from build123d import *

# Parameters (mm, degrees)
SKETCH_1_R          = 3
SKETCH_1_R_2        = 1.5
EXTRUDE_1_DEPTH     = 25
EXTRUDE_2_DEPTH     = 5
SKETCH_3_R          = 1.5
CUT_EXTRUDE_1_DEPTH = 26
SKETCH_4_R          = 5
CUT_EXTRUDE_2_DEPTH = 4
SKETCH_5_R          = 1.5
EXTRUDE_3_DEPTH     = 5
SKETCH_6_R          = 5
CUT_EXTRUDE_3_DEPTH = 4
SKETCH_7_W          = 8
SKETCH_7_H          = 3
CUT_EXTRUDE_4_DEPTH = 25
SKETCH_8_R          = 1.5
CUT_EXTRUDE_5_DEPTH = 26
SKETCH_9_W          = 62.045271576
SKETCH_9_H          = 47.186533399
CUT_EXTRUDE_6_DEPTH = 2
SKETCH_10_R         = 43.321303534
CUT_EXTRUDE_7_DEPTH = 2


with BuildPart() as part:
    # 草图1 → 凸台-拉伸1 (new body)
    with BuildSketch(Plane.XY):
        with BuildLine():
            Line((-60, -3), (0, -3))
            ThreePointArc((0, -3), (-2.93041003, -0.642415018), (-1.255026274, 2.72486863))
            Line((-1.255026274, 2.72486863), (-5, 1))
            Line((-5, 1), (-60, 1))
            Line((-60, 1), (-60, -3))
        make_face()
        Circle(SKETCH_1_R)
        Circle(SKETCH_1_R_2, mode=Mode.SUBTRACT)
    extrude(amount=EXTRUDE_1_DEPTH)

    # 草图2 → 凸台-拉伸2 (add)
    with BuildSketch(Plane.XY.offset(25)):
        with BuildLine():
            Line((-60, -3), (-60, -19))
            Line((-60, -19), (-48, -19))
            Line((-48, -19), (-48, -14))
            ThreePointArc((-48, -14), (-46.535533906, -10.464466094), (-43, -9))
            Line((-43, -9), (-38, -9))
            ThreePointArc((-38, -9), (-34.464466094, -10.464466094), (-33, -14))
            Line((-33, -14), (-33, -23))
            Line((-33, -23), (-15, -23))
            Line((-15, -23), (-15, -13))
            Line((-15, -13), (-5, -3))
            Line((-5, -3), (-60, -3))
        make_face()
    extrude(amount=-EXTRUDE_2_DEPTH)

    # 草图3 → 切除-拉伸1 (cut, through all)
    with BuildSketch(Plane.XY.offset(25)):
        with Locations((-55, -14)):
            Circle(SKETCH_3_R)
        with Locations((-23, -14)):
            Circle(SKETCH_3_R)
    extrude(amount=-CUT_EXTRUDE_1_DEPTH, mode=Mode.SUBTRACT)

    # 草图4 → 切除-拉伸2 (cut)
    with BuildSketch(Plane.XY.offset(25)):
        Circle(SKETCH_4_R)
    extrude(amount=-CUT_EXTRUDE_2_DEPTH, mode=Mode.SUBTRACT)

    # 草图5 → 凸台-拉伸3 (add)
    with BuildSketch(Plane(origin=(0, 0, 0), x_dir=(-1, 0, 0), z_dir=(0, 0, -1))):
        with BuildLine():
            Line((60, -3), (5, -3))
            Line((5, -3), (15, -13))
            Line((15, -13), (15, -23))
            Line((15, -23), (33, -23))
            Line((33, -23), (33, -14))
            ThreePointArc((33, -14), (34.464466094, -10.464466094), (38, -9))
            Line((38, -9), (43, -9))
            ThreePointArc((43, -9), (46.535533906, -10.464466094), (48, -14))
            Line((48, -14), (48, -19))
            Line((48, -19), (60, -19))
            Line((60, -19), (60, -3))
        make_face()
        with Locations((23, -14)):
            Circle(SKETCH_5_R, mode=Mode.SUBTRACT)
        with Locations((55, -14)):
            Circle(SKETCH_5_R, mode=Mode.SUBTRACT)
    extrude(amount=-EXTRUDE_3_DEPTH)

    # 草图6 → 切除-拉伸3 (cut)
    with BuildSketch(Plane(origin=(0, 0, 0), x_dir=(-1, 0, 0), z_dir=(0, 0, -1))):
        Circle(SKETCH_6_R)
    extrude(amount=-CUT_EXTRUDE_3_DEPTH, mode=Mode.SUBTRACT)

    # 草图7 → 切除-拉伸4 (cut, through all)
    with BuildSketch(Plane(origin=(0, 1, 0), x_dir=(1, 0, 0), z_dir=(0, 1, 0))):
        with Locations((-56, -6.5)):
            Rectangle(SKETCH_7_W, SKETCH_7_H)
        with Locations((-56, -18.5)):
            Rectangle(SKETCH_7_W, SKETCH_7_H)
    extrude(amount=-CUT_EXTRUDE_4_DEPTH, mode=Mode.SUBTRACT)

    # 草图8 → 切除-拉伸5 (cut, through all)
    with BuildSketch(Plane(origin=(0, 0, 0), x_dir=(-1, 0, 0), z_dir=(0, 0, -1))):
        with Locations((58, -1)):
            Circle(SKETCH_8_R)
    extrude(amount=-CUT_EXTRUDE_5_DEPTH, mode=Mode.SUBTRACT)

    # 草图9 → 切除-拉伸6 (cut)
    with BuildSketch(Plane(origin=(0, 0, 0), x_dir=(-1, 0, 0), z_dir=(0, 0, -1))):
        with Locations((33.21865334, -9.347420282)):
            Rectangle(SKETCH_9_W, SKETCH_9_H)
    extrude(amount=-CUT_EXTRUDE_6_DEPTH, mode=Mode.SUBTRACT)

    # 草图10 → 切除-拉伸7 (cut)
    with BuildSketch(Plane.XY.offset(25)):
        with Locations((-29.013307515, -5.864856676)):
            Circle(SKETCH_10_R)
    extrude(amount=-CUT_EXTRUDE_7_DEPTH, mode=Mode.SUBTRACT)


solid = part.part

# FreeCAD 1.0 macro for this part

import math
import FreeCAD as App
import Part
import Sketcher
from FreeCAD import Vector
Q = App.Units.Quantity


def add_polygon(sketch, points):
    """Adds a closed chain of lines whose ends are joined by coincident constraints."""
    first, n = sketch.GeometryCount, len(points)
    for a, b in zip(points, points[1:] + points[:1]):
        sketch.addGeometry(Part.LineSegment(App.Vector(*a, 0), App.Vector(*b, 0)), False)
    for i in range(n):
        sketch.addConstraint(Sketcher.Constraint("Coincident", first + i, 2, first + (i + 1) % n, 1))

doc = App.newDocument("Part")
body = doc.addObject("PartDesign::Body", "Body")

sketch1 = body.newObject("Sketcher::SketchObject", "Sketch")
sketch1.AttachmentSupport = (doc.getObject("XY_Plane"), [""])
sketch1.MapMode = "FlatFace"
sketch1.addGeometry(Part.LineSegment(Vector(-60, -3, 0), Vector(0, -3, 0)), False)
sketch1.addGeometry(Part.ArcOfCircle(Part.Circle(Vector(0, 0, 0), Vector(0, 0, 1), 3), math.radians(-90), math.radians(115)), False)
sketch1.addGeometry(Part.LineSegment(Vector(-1.3, 2.7, 0), Vector(-5, 1, 0)), False)
sketch1.addGeometry(Part.LineSegment(Vector(-5, 1, 0), Vector(-60, 1, 0)), False)
sketch1.addGeometry(Part.LineSegment(Vector(-60, 1, 0), Vector(-60, -3, 0)), False)
sketch1.addGeometry(Part.Circle(Vector(0, 0, 0), Vector(0, 0, 1), 1.5), False)
sketch1.addConstraint(Sketcher.Constraint("Tangent", 0, 2, 1, 1))
sketch1.addConstraint(Sketcher.Constraint("Tangent", 1, 2, 2, 1))
sketch1.addConstraint(Sketcher.Constraint("Coincident", 2, 2, 3, 1))
sketch1.addConstraint(Sketcher.Constraint("Coincident", 3, 2, 4, 1))
sketch1.addConstraint(Sketcher.Constraint("Coincident", 4, 2, 0, 1))
sketch1.addConstraint(Sketcher.Constraint("Horizontal", 0))
sketch1.addConstraint(Sketcher.Constraint("Horizontal", 3))
sketch1.addConstraint(Sketcher.Constraint("Vertical", 4))
sketch1.addConstraint(Sketcher.Constraint("Coincident", 1, 3, -1, 1))
sketch1.addConstraint(Sketcher.Constraint("Coincident", 5, 3, -1, 1))
sketch1.addConstraint(Sketcher.Constraint("Diameter", 5, Q("3 mm")))
sketch1.addConstraint(Sketcher.Constraint("Radius", 1, Q("3 mm")))
sketch1.addConstraint(Sketcher.Constraint("DistanceX", 0, 1, 0, 2, Q("60 mm")))
sketch1.addConstraint(Sketcher.Constraint("DistanceX", 3, 2, 3, 1, Q("55 mm")))
sketch1.addConstraint(Sketcher.Constraint("DistanceY", 4, 2, 4, 1, Q("4 mm")))
pad1 = body.newObject("PartDesign::Pad", "Pad")
pad1.Profile = sketch1
pad1.Length = 25

sketch2 = body.newObject("Sketcher::SketchObject", "Sketch001")
sketch2.AttachmentSupport = (doc.getObject("XY_Plane"), [""])
sketch2.MapMode = "FlatFace"
sketch2.AttachmentOffset = App.Placement(Vector(0, 0, 25), App.Rotation())
sketch2.addGeometry(Part.LineSegment(Vector(-60, -3, 0), Vector(-60, -19, 0)), False)
sketch2.addGeometry(Part.LineSegment(Vector(-60, -19, 0), Vector(-48, -19, 0)), False)
sketch2.addGeometry(Part.LineSegment(Vector(-48, -19, 0), Vector(-48, -14, 0)), False)
sketch2.addGeometry(Part.ArcOfCircle(Part.Circle(Vector(-43, -14, 0), Vector(0, 0, 1), 5), math.radians(90), math.radians(180)), False)
sketch2.addGeometry(Part.LineSegment(Vector(-43, -9, 0), Vector(-38, -9, 0)), False)
sketch2.addGeometry(Part.ArcOfCircle(Part.Circle(Vector(-38, -14, 0), Vector(0, 0, 1), 5), math.radians(0), math.radians(90)), False)
sketch2.addGeometry(Part.LineSegment(Vector(-33, -14, 0), Vector(-33, -23, 0)), False)
sketch2.addGeometry(Part.LineSegment(Vector(-33, -23, 0), Vector(-15, -23, 0)), False)
sketch2.addGeometry(Part.LineSegment(Vector(-15, -23, 0), Vector(-15, -13, 0)), False)
sketch2.addGeometry(Part.LineSegment(Vector(-15, -13, 0), Vector(-5, -3, 0)), False)
sketch2.addGeometry(Part.LineSegment(Vector(-5, -3, 0), Vector(-60, -3, 0)), False)
sketch2.addConstraint(Sketcher.Constraint("Coincident", 0, 2, 1, 1))
sketch2.addConstraint(Sketcher.Constraint("Coincident", 1, 2, 2, 1))
sketch2.addConstraint(Sketcher.Constraint("Tangent", 2, 2, 3, 2))
sketch2.addConstraint(Sketcher.Constraint("Tangent", 3, 1, 4, 1))
sketch2.addConstraint(Sketcher.Constraint("Tangent", 4, 2, 5, 2))
sketch2.addConstraint(Sketcher.Constraint("Tangent", 5, 1, 6, 1))
sketch2.addConstraint(Sketcher.Constraint("Coincident", 6, 2, 7, 1))
sketch2.addConstraint(Sketcher.Constraint("Coincident", 7, 2, 8, 1))
sketch2.addConstraint(Sketcher.Constraint("Coincident", 8, 2, 9, 1))
sketch2.addConstraint(Sketcher.Constraint("Coincident", 9, 2, 10, 1))
sketch2.addConstraint(Sketcher.Constraint("Coincident", 10, 2, 0, 1))
sketch2.addConstraint(Sketcher.Constraint("Vertical", 0))
sketch2.addConstraint(Sketcher.Constraint("Horizontal", 1))
sketch2.addConstraint(Sketcher.Constraint("Vertical", 2))
sketch2.addConstraint(Sketcher.Constraint("Horizontal", 4))
sketch2.addConstraint(Sketcher.Constraint("Vertical", 6))
sketch2.addConstraint(Sketcher.Constraint("Horizontal", 7))
sketch2.addConstraint(Sketcher.Constraint("Vertical", 8))
sketch2.addConstraint(Sketcher.Constraint("Horizontal", 10))
sketch2.addConstraint(Sketcher.Constraint("Equal", 3, 5))
sketch2.addConstraint(Sketcher.Constraint("Equal", 4, 2))
sketch2.addConstraint(Sketcher.Constraint("Radius", 3, Q("5 mm")))
sketch2.addConstraint(Sketcher.Constraint("DistanceX", 1, 1, 1, 2, Q("12 mm")))
sketch2.addConstraint(Sketcher.Constraint("DistanceX", 4, 1, 4, 2, Q("5 mm")))
sketch2.addConstraint(Sketcher.Constraint("DistanceX", 7, 1, 7, 2, Q("18 mm")))
sketch2.addConstraint(Sketcher.Constraint("DistanceX", 10, 2, 10, 1, Q("55 mm")))
sketch2.addConstraint(Sketcher.Constraint("DistanceY", 0, 2, 0, 1, Q("16 mm")))
sketch2.addConstraint(Sketcher.Constraint("DistanceY", 6, 2, 6, 1, Q("9 mm")))
sketch2.addConstraint(Sketcher.Constraint("DistanceY", 8, 1, 8, 2, Q("10 mm")))
sketch2.addConstraint(Sketcher.Constraint("DistanceX", 3, 3, -1, 1, Q("43 mm")))
sketch2.addConstraint(Sketcher.Constraint("DistanceY", 3, 3, -1, 1, Q("14 mm")))
pad2 = body.newObject("PartDesign::Pad", "Pad001")
pad2.Profile = sketch2
pad2.Length = 5
pad2.Reversed = True

sketch3 = body.newObject("Sketcher::SketchObject", "Sketch002")
sketch3.AttachmentSupport = (doc.getObject("XY_Plane"), [""])
sketch3.MapMode = "FlatFace"
sketch3.AttachmentOffset = App.Placement(Vector(0, 0, 25), App.Rotation())
sketch3.addGeometry(Part.Circle(Vector(-55, -14, 0), Vector(0, 0, 1), 1.5), False)
sketch3.addGeometry(Part.Circle(Vector(-23, -14, 0), Vector(0, 0, 1), 1.5), False)
sketch3.addConstraint(Sketcher.Constraint("Equal", 0, 1))
sketch3.addConstraint(Sketcher.Constraint("Horizontal", 0, 3, 1, 3))
sketch3.addConstraint(Sketcher.Constraint("Diameter", 0, Q("3 mm")))
sketch3.addConstraint(Sketcher.Constraint("DistanceX", 0, 3, -1, 1, Q("55 mm")))
sketch3.addConstraint(Sketcher.Constraint("DistanceY", 0, 3, -1, 1, Q("14 mm")))
sketch3.addConstraint(Sketcher.Constraint("DistanceX", 1, 3, -1, 1, Q("23 mm")))
pocket1 = body.newObject("PartDesign::Pocket", "Pocket")
pocket1.Profile = sketch3
pocket1.Type = "ThroughAll"

sketch4 = body.newObject("Sketcher::SketchObject", "Sketch003")
sketch4.AttachmentSupport = (doc.getObject("XY_Plane"), [""])
sketch4.MapMode = "FlatFace"
sketch4.AttachmentOffset = App.Placement(Vector(0, 0, 25), App.Rotation())
sketch4.addGeometry(Part.Circle(Vector(0, 0, 0), Vector(0, 0, 1), 5), False)
sketch4.addConstraint(Sketcher.Constraint("Coincident", 0, 3, -1, 1))
sketch4.addConstraint(Sketcher.Constraint("Diameter", 0, Q("10 mm")))
pocket2 = body.newObject("PartDesign::Pocket", "Pocket001")
pocket2.Profile = sketch4
pocket2.Length = 4

sketch5 = body.newObject("Sketcher::SketchObject", "Sketch004")
sketch5.AttachmentSupport = (doc.getObject("XY_Plane"), [""])
sketch5.MapMode = "FlatFace"
sketch5.addGeometry(Part.LineSegment(Vector(-60, -3, 0), Vector(-5, -3, 0)), False)
sketch5.addGeometry(Part.LineSegment(Vector(-5, -3, 0), Vector(-15, -13, 0)), False)
sketch5.addGeometry(Part.LineSegment(Vector(-15, -13, 0), Vector(-15, -23, 0)), False)
sketch5.addGeometry(Part.LineSegment(Vector(-15, -23, 0), Vector(-33, -23, 0)), False)
sketch5.addGeometry(Part.LineSegment(Vector(-33, -23, 0), Vector(-33, -14, 0)), False)
sketch5.addGeometry(Part.ArcOfCircle(Part.Circle(Vector(-38, -14, 0), Vector(0, 0, 1), 5), math.radians(0), math.radians(90)), False)
sketch5.addGeometry(Part.LineSegment(Vector(-38, -9, 0), Vector(-43, -9, 0)), False)
sketch5.addGeometry(Part.ArcOfCircle(Part.Circle(Vector(-43, -14, 0), Vector(0, 0, 1), 5), math.radians(90), math.radians(180)), False)
sketch5.addGeometry(Part.LineSegment(Vector(-48, -14, 0), Vector(-48, -19, 0)), False)
sketch5.addGeometry(Part.LineSegment(Vector(-48, -19, 0), Vector(-60, -19, 0)), False)
sketch5.addGeometry(Part.LineSegment(Vector(-60, -19, 0), Vector(-60, -3, 0)), False)
sketch5.addGeometry(Part.Circle(Vector(-23, -14, 0), Vector(0, 0, 1), 1.5), False)
sketch5.addGeometry(Part.Circle(Vector(-55, -14, 0), Vector(0, 0, 1), 1.5), False)
sketch5.addConstraint(Sketcher.Constraint("Coincident", 0, 2, 1, 1))
sketch5.addConstraint(Sketcher.Constraint("Coincident", 1, 2, 2, 1))
sketch5.addConstraint(Sketcher.Constraint("Coincident", 2, 2, 3, 1))
sketch5.addConstraint(Sketcher.Constraint("Coincident", 3, 2, 4, 1))
sketch5.addConstraint(Sketcher.Constraint("Tangent", 4, 2, 5, 1))
sketch5.addConstraint(Sketcher.Constraint("Tangent", 5, 2, 6, 1))
sketch5.addConstraint(Sketcher.Constraint("Tangent", 6, 2, 7, 1))
sketch5.addConstraint(Sketcher.Constraint("Tangent", 7, 2, 8, 1))
sketch5.addConstraint(Sketcher.Constraint("Coincident", 8, 2, 9, 1))
sketch5.addConstraint(Sketcher.Constraint("Coincident", 9, 2, 10, 1))
sketch5.addConstraint(Sketcher.Constraint("Coincident", 10, 2, 0, 1))
sketch5.addConstraint(Sketcher.Constraint("Horizontal", 0))
sketch5.addConstraint(Sketcher.Constraint("Vertical", 2))
sketch5.addConstraint(Sketcher.Constraint("Horizontal", 3))
sketch5.addConstraint(Sketcher.Constraint("Vertical", 4))
sketch5.addConstraint(Sketcher.Constraint("Horizontal", 6))
sketch5.addConstraint(Sketcher.Constraint("Vertical", 8))
sketch5.addConstraint(Sketcher.Constraint("Horizontal", 9))
sketch5.addConstraint(Sketcher.Constraint("Vertical", 10))
sketch5.addConstraint(Sketcher.Constraint("Equal", 5, 7))
sketch5.addConstraint(Sketcher.Constraint("Equal", 11, 12))
sketch5.addConstraint(Sketcher.Constraint("Horizontal", 7, 3, 11, 3))
sketch5.addConstraint(Sketcher.Constraint("Horizontal", 11, 3, 12, 3))
sketch5.addConstraint(Sketcher.Constraint("Equal", 6, 8))
sketch5.addConstraint(Sketcher.Constraint("Diameter", 11, Q("3 mm")))
sketch5.addConstraint(Sketcher.Constraint("Radius", 5, Q("5 mm")))
sketch5.addConstraint(Sketcher.Constraint("DistanceX", 0, 1, 0, 2, Q("55 mm")))
sketch5.addConstraint(Sketcher.Constraint("DistanceX", 3, 2, 3, 1, Q("18 mm")))
sketch5.addConstraint(Sketcher.Constraint("DistanceX", 6, 2, 6, 1, Q("5 mm")))
sketch5.addConstraint(Sketcher.Constraint("DistanceX", 9, 2, 9, 1, Q("12 mm")))
sketch5.addConstraint(Sketcher.Constraint("DistanceY", 2, 2, 2, 1, Q("10 mm")))
sketch5.addConstraint(Sketcher.Constraint("DistanceY", 4, 1, 4, 2, Q("9 mm")))
sketch5.addConstraint(Sketcher.Constraint("DistanceY", 10, 1, 10, 2, Q("16 mm")))
sketch5.addConstraint(Sketcher.Constraint("DistanceX", 5, 3, -1, 1, Q("38 mm")))
sketch5.addConstraint(Sketcher.Constraint("DistanceY", 5, 3, -1, 1, Q("14 mm")))
sketch5.addConstraint(Sketcher.Constraint("DistanceX", 11, 3, -1, 1, Q("23 mm")))
sketch5.addConstraint(Sketcher.Constraint("DistanceX", 12, 3, -1, 1, Q("55 mm")))
pad3 = body.newObject("PartDesign::Pad", "Pad002")
pad3.Profile = sketch5
pad3.Length = 5

sketch6 = body.newObject("Sketcher::SketchObject", "Sketch005")
sketch6.AttachmentSupport = (doc.getObject("XY_Plane"), [""])
sketch6.MapMode = "FlatFace"
sketch6.addGeometry(Part.Circle(Vector(0, 0, 0), Vector(0, 0, 1), 5), False)
sketch6.addConstraint(Sketcher.Constraint("Coincident", 0, 3, -1, 1))
sketch6.addConstraint(Sketcher.Constraint("Diameter", 0, Q("10 mm")))
pocket3 = body.newObject("PartDesign::Pocket", "Pocket002")
pocket3.Profile = sketch6
pocket3.Length = 4
pocket3.Reversed = True

sketch7 = body.newObject("Sketcher::SketchObject", "Sketch006")
sketch7.AttachmentSupport = (doc.getObject("XZ_Plane"), [""])
sketch7.MapMode = "FlatFace"
sketch7.AttachmentOffset = App.Placement(Vector(0, 0, -1), App.Rotation())
add_polygon(sketch7, [(-60, 5), (-60, 8), (-52, 8), (-52, 5)])
add_polygon(sketch7, [(-60, 17), (-60, 20), (-52, 20), (-52, 17)])
sketch7.addConstraint(Sketcher.Constraint("Vertical", 0))
sketch7.addConstraint(Sketcher.Constraint("Horizontal", 1))
sketch7.addConstraint(Sketcher.Constraint("Vertical", 2))
sketch7.addConstraint(Sketcher.Constraint("Horizontal", 3))
sketch7.addConstraint(Sketcher.Constraint("Vertical", 4))
sketch7.addConstraint(Sketcher.Constraint("Horizontal", 5))
sketch7.addConstraint(Sketcher.Constraint("Vertical", 6))
sketch7.addConstraint(Sketcher.Constraint("Horizontal", 7))
sketch7.addConstraint(Sketcher.Constraint("Vertical", 3, 2, 4, 2))
sketch7.addConstraint(Sketcher.Constraint("Vertical", 2, 2, 5, 2))
sketch7.addConstraint(Sketcher.Constraint("Equal", 2, 4))
sketch7.addConstraint(Sketcher.Constraint("DistanceX", 1, 1, 1, 2, Q("8 mm")))
sketch7.addConstraint(Sketcher.Constraint("DistanceY", 0, 1, 0, 2, Q("3 mm")))
sketch7.addConstraint(Sketcher.Constraint("DistanceX", 0, 2, -1, 1, Q("60 mm")))
sketch7.addConstraint(Sketcher.Constraint("DistanceY", -1, 1, 0, 2, Q("8 mm")))
sketch7.addConstraint(Sketcher.Constraint("DistanceY", -1, 1, 4, 2, Q("20 mm")))
pocket4 = body.newObject("PartDesign::Pocket", "Pocket003")
pocket4.Profile = sketch7
pocket4.Type = "ThroughAll"
pocket4.Reversed = True

sketch8 = body.newObject("Sketcher::SketchObject", "Sketch007")
sketch8.AttachmentSupport = (doc.getObject("XY_Plane"), [""])
sketch8.MapMode = "FlatFace"
sketch8.addGeometry(Part.Circle(Vector(-58, -1, 0), Vector(0, 0, 1), 1.5), False)
sketch8.addConstraint(Sketcher.Constraint("Diameter", 0, Q("3 mm")))
sketch8.addConstraint(Sketcher.Constraint("DistanceX", 0, 3, -1, 1, Q("58 mm")))
sketch8.addConstraint(Sketcher.Constraint("DistanceY", 0, 3, -1, 1, Q("1 mm")))
pocket5 = body.newObject("PartDesign::Pocket", "Pocket004")
pocket5.Profile = sketch8
pocket5.Type = "ThroughAll"
pocket5.Reversed = True

sketch9 = body.newObject("Sketcher::SketchObject", "Sketch008")
sketch9.AttachmentSupport = (doc.getObject("XY_Plane"), [""])
sketch9.MapMode = "FlatFace"
add_polygon(sketch9, [(-2, 14), (-2, -33), (-64, -33), (-64, 14)])
sketch9.addConstraint(Sketcher.Constraint("Vertical", 0))
sketch9.addConstraint(Sketcher.Constraint("Horizontal", 1))
sketch9.addConstraint(Sketcher.Constraint("Vertical", 2))
sketch9.addConstraint(Sketcher.Constraint("Horizontal", 3))
sketch9.addConstraint(Sketcher.Constraint("DistanceX", 1, 2, 1, 1, Q("62.045272 mm")))
sketch9.addConstraint(Sketcher.Constraint("DistanceY", 0, 2, 0, 1, Q("47.186533 mm")))
sketch9.addConstraint(Sketcher.Constraint("DistanceX", 1, 2, -1, 1, Q("64.241289 mm")))
sketch9.addConstraint(Sketcher.Constraint("DistanceY", 0, 2, -1, 1, Q("32.940687 mm")))
pocket6 = body.newObject("PartDesign::Pocket", "Pocket005")
pocket6.Profile = sketch9
pocket6.Length = 2
pocket6.Reversed = True

sketch10 = body.newObject("Sketcher::SketchObject", "Sketch009")
sketch10.AttachmentSupport = (doc.getObject("XY_Plane"), [""])
sketch10.MapMode = "FlatFace"
sketch10.AttachmentOffset = App.Placement(Vector(0, 0, 25), App.Rotation())
sketch10.addGeometry(Part.Circle(Vector(-29, -6, 0), Vector(0, 0, 1), 43), False)
sketch10.addConstraint(Sketcher.Constraint("Diameter", 0, Q("86.642607 mm")))
sketch10.addConstraint(Sketcher.Constraint("DistanceX", 0, 3, -1, 1, Q("29.013308 mm")))
sketch10.addConstraint(Sketcher.Constraint("DistanceY", 0, 3, -1, 1, Q("5.864857 mm")))
pocket7 = body.newObject("PartDesign::Pocket", "Pocket006")
pocket7.Profile = sketch10
pocket7.Length = 2

doc.recompute()
